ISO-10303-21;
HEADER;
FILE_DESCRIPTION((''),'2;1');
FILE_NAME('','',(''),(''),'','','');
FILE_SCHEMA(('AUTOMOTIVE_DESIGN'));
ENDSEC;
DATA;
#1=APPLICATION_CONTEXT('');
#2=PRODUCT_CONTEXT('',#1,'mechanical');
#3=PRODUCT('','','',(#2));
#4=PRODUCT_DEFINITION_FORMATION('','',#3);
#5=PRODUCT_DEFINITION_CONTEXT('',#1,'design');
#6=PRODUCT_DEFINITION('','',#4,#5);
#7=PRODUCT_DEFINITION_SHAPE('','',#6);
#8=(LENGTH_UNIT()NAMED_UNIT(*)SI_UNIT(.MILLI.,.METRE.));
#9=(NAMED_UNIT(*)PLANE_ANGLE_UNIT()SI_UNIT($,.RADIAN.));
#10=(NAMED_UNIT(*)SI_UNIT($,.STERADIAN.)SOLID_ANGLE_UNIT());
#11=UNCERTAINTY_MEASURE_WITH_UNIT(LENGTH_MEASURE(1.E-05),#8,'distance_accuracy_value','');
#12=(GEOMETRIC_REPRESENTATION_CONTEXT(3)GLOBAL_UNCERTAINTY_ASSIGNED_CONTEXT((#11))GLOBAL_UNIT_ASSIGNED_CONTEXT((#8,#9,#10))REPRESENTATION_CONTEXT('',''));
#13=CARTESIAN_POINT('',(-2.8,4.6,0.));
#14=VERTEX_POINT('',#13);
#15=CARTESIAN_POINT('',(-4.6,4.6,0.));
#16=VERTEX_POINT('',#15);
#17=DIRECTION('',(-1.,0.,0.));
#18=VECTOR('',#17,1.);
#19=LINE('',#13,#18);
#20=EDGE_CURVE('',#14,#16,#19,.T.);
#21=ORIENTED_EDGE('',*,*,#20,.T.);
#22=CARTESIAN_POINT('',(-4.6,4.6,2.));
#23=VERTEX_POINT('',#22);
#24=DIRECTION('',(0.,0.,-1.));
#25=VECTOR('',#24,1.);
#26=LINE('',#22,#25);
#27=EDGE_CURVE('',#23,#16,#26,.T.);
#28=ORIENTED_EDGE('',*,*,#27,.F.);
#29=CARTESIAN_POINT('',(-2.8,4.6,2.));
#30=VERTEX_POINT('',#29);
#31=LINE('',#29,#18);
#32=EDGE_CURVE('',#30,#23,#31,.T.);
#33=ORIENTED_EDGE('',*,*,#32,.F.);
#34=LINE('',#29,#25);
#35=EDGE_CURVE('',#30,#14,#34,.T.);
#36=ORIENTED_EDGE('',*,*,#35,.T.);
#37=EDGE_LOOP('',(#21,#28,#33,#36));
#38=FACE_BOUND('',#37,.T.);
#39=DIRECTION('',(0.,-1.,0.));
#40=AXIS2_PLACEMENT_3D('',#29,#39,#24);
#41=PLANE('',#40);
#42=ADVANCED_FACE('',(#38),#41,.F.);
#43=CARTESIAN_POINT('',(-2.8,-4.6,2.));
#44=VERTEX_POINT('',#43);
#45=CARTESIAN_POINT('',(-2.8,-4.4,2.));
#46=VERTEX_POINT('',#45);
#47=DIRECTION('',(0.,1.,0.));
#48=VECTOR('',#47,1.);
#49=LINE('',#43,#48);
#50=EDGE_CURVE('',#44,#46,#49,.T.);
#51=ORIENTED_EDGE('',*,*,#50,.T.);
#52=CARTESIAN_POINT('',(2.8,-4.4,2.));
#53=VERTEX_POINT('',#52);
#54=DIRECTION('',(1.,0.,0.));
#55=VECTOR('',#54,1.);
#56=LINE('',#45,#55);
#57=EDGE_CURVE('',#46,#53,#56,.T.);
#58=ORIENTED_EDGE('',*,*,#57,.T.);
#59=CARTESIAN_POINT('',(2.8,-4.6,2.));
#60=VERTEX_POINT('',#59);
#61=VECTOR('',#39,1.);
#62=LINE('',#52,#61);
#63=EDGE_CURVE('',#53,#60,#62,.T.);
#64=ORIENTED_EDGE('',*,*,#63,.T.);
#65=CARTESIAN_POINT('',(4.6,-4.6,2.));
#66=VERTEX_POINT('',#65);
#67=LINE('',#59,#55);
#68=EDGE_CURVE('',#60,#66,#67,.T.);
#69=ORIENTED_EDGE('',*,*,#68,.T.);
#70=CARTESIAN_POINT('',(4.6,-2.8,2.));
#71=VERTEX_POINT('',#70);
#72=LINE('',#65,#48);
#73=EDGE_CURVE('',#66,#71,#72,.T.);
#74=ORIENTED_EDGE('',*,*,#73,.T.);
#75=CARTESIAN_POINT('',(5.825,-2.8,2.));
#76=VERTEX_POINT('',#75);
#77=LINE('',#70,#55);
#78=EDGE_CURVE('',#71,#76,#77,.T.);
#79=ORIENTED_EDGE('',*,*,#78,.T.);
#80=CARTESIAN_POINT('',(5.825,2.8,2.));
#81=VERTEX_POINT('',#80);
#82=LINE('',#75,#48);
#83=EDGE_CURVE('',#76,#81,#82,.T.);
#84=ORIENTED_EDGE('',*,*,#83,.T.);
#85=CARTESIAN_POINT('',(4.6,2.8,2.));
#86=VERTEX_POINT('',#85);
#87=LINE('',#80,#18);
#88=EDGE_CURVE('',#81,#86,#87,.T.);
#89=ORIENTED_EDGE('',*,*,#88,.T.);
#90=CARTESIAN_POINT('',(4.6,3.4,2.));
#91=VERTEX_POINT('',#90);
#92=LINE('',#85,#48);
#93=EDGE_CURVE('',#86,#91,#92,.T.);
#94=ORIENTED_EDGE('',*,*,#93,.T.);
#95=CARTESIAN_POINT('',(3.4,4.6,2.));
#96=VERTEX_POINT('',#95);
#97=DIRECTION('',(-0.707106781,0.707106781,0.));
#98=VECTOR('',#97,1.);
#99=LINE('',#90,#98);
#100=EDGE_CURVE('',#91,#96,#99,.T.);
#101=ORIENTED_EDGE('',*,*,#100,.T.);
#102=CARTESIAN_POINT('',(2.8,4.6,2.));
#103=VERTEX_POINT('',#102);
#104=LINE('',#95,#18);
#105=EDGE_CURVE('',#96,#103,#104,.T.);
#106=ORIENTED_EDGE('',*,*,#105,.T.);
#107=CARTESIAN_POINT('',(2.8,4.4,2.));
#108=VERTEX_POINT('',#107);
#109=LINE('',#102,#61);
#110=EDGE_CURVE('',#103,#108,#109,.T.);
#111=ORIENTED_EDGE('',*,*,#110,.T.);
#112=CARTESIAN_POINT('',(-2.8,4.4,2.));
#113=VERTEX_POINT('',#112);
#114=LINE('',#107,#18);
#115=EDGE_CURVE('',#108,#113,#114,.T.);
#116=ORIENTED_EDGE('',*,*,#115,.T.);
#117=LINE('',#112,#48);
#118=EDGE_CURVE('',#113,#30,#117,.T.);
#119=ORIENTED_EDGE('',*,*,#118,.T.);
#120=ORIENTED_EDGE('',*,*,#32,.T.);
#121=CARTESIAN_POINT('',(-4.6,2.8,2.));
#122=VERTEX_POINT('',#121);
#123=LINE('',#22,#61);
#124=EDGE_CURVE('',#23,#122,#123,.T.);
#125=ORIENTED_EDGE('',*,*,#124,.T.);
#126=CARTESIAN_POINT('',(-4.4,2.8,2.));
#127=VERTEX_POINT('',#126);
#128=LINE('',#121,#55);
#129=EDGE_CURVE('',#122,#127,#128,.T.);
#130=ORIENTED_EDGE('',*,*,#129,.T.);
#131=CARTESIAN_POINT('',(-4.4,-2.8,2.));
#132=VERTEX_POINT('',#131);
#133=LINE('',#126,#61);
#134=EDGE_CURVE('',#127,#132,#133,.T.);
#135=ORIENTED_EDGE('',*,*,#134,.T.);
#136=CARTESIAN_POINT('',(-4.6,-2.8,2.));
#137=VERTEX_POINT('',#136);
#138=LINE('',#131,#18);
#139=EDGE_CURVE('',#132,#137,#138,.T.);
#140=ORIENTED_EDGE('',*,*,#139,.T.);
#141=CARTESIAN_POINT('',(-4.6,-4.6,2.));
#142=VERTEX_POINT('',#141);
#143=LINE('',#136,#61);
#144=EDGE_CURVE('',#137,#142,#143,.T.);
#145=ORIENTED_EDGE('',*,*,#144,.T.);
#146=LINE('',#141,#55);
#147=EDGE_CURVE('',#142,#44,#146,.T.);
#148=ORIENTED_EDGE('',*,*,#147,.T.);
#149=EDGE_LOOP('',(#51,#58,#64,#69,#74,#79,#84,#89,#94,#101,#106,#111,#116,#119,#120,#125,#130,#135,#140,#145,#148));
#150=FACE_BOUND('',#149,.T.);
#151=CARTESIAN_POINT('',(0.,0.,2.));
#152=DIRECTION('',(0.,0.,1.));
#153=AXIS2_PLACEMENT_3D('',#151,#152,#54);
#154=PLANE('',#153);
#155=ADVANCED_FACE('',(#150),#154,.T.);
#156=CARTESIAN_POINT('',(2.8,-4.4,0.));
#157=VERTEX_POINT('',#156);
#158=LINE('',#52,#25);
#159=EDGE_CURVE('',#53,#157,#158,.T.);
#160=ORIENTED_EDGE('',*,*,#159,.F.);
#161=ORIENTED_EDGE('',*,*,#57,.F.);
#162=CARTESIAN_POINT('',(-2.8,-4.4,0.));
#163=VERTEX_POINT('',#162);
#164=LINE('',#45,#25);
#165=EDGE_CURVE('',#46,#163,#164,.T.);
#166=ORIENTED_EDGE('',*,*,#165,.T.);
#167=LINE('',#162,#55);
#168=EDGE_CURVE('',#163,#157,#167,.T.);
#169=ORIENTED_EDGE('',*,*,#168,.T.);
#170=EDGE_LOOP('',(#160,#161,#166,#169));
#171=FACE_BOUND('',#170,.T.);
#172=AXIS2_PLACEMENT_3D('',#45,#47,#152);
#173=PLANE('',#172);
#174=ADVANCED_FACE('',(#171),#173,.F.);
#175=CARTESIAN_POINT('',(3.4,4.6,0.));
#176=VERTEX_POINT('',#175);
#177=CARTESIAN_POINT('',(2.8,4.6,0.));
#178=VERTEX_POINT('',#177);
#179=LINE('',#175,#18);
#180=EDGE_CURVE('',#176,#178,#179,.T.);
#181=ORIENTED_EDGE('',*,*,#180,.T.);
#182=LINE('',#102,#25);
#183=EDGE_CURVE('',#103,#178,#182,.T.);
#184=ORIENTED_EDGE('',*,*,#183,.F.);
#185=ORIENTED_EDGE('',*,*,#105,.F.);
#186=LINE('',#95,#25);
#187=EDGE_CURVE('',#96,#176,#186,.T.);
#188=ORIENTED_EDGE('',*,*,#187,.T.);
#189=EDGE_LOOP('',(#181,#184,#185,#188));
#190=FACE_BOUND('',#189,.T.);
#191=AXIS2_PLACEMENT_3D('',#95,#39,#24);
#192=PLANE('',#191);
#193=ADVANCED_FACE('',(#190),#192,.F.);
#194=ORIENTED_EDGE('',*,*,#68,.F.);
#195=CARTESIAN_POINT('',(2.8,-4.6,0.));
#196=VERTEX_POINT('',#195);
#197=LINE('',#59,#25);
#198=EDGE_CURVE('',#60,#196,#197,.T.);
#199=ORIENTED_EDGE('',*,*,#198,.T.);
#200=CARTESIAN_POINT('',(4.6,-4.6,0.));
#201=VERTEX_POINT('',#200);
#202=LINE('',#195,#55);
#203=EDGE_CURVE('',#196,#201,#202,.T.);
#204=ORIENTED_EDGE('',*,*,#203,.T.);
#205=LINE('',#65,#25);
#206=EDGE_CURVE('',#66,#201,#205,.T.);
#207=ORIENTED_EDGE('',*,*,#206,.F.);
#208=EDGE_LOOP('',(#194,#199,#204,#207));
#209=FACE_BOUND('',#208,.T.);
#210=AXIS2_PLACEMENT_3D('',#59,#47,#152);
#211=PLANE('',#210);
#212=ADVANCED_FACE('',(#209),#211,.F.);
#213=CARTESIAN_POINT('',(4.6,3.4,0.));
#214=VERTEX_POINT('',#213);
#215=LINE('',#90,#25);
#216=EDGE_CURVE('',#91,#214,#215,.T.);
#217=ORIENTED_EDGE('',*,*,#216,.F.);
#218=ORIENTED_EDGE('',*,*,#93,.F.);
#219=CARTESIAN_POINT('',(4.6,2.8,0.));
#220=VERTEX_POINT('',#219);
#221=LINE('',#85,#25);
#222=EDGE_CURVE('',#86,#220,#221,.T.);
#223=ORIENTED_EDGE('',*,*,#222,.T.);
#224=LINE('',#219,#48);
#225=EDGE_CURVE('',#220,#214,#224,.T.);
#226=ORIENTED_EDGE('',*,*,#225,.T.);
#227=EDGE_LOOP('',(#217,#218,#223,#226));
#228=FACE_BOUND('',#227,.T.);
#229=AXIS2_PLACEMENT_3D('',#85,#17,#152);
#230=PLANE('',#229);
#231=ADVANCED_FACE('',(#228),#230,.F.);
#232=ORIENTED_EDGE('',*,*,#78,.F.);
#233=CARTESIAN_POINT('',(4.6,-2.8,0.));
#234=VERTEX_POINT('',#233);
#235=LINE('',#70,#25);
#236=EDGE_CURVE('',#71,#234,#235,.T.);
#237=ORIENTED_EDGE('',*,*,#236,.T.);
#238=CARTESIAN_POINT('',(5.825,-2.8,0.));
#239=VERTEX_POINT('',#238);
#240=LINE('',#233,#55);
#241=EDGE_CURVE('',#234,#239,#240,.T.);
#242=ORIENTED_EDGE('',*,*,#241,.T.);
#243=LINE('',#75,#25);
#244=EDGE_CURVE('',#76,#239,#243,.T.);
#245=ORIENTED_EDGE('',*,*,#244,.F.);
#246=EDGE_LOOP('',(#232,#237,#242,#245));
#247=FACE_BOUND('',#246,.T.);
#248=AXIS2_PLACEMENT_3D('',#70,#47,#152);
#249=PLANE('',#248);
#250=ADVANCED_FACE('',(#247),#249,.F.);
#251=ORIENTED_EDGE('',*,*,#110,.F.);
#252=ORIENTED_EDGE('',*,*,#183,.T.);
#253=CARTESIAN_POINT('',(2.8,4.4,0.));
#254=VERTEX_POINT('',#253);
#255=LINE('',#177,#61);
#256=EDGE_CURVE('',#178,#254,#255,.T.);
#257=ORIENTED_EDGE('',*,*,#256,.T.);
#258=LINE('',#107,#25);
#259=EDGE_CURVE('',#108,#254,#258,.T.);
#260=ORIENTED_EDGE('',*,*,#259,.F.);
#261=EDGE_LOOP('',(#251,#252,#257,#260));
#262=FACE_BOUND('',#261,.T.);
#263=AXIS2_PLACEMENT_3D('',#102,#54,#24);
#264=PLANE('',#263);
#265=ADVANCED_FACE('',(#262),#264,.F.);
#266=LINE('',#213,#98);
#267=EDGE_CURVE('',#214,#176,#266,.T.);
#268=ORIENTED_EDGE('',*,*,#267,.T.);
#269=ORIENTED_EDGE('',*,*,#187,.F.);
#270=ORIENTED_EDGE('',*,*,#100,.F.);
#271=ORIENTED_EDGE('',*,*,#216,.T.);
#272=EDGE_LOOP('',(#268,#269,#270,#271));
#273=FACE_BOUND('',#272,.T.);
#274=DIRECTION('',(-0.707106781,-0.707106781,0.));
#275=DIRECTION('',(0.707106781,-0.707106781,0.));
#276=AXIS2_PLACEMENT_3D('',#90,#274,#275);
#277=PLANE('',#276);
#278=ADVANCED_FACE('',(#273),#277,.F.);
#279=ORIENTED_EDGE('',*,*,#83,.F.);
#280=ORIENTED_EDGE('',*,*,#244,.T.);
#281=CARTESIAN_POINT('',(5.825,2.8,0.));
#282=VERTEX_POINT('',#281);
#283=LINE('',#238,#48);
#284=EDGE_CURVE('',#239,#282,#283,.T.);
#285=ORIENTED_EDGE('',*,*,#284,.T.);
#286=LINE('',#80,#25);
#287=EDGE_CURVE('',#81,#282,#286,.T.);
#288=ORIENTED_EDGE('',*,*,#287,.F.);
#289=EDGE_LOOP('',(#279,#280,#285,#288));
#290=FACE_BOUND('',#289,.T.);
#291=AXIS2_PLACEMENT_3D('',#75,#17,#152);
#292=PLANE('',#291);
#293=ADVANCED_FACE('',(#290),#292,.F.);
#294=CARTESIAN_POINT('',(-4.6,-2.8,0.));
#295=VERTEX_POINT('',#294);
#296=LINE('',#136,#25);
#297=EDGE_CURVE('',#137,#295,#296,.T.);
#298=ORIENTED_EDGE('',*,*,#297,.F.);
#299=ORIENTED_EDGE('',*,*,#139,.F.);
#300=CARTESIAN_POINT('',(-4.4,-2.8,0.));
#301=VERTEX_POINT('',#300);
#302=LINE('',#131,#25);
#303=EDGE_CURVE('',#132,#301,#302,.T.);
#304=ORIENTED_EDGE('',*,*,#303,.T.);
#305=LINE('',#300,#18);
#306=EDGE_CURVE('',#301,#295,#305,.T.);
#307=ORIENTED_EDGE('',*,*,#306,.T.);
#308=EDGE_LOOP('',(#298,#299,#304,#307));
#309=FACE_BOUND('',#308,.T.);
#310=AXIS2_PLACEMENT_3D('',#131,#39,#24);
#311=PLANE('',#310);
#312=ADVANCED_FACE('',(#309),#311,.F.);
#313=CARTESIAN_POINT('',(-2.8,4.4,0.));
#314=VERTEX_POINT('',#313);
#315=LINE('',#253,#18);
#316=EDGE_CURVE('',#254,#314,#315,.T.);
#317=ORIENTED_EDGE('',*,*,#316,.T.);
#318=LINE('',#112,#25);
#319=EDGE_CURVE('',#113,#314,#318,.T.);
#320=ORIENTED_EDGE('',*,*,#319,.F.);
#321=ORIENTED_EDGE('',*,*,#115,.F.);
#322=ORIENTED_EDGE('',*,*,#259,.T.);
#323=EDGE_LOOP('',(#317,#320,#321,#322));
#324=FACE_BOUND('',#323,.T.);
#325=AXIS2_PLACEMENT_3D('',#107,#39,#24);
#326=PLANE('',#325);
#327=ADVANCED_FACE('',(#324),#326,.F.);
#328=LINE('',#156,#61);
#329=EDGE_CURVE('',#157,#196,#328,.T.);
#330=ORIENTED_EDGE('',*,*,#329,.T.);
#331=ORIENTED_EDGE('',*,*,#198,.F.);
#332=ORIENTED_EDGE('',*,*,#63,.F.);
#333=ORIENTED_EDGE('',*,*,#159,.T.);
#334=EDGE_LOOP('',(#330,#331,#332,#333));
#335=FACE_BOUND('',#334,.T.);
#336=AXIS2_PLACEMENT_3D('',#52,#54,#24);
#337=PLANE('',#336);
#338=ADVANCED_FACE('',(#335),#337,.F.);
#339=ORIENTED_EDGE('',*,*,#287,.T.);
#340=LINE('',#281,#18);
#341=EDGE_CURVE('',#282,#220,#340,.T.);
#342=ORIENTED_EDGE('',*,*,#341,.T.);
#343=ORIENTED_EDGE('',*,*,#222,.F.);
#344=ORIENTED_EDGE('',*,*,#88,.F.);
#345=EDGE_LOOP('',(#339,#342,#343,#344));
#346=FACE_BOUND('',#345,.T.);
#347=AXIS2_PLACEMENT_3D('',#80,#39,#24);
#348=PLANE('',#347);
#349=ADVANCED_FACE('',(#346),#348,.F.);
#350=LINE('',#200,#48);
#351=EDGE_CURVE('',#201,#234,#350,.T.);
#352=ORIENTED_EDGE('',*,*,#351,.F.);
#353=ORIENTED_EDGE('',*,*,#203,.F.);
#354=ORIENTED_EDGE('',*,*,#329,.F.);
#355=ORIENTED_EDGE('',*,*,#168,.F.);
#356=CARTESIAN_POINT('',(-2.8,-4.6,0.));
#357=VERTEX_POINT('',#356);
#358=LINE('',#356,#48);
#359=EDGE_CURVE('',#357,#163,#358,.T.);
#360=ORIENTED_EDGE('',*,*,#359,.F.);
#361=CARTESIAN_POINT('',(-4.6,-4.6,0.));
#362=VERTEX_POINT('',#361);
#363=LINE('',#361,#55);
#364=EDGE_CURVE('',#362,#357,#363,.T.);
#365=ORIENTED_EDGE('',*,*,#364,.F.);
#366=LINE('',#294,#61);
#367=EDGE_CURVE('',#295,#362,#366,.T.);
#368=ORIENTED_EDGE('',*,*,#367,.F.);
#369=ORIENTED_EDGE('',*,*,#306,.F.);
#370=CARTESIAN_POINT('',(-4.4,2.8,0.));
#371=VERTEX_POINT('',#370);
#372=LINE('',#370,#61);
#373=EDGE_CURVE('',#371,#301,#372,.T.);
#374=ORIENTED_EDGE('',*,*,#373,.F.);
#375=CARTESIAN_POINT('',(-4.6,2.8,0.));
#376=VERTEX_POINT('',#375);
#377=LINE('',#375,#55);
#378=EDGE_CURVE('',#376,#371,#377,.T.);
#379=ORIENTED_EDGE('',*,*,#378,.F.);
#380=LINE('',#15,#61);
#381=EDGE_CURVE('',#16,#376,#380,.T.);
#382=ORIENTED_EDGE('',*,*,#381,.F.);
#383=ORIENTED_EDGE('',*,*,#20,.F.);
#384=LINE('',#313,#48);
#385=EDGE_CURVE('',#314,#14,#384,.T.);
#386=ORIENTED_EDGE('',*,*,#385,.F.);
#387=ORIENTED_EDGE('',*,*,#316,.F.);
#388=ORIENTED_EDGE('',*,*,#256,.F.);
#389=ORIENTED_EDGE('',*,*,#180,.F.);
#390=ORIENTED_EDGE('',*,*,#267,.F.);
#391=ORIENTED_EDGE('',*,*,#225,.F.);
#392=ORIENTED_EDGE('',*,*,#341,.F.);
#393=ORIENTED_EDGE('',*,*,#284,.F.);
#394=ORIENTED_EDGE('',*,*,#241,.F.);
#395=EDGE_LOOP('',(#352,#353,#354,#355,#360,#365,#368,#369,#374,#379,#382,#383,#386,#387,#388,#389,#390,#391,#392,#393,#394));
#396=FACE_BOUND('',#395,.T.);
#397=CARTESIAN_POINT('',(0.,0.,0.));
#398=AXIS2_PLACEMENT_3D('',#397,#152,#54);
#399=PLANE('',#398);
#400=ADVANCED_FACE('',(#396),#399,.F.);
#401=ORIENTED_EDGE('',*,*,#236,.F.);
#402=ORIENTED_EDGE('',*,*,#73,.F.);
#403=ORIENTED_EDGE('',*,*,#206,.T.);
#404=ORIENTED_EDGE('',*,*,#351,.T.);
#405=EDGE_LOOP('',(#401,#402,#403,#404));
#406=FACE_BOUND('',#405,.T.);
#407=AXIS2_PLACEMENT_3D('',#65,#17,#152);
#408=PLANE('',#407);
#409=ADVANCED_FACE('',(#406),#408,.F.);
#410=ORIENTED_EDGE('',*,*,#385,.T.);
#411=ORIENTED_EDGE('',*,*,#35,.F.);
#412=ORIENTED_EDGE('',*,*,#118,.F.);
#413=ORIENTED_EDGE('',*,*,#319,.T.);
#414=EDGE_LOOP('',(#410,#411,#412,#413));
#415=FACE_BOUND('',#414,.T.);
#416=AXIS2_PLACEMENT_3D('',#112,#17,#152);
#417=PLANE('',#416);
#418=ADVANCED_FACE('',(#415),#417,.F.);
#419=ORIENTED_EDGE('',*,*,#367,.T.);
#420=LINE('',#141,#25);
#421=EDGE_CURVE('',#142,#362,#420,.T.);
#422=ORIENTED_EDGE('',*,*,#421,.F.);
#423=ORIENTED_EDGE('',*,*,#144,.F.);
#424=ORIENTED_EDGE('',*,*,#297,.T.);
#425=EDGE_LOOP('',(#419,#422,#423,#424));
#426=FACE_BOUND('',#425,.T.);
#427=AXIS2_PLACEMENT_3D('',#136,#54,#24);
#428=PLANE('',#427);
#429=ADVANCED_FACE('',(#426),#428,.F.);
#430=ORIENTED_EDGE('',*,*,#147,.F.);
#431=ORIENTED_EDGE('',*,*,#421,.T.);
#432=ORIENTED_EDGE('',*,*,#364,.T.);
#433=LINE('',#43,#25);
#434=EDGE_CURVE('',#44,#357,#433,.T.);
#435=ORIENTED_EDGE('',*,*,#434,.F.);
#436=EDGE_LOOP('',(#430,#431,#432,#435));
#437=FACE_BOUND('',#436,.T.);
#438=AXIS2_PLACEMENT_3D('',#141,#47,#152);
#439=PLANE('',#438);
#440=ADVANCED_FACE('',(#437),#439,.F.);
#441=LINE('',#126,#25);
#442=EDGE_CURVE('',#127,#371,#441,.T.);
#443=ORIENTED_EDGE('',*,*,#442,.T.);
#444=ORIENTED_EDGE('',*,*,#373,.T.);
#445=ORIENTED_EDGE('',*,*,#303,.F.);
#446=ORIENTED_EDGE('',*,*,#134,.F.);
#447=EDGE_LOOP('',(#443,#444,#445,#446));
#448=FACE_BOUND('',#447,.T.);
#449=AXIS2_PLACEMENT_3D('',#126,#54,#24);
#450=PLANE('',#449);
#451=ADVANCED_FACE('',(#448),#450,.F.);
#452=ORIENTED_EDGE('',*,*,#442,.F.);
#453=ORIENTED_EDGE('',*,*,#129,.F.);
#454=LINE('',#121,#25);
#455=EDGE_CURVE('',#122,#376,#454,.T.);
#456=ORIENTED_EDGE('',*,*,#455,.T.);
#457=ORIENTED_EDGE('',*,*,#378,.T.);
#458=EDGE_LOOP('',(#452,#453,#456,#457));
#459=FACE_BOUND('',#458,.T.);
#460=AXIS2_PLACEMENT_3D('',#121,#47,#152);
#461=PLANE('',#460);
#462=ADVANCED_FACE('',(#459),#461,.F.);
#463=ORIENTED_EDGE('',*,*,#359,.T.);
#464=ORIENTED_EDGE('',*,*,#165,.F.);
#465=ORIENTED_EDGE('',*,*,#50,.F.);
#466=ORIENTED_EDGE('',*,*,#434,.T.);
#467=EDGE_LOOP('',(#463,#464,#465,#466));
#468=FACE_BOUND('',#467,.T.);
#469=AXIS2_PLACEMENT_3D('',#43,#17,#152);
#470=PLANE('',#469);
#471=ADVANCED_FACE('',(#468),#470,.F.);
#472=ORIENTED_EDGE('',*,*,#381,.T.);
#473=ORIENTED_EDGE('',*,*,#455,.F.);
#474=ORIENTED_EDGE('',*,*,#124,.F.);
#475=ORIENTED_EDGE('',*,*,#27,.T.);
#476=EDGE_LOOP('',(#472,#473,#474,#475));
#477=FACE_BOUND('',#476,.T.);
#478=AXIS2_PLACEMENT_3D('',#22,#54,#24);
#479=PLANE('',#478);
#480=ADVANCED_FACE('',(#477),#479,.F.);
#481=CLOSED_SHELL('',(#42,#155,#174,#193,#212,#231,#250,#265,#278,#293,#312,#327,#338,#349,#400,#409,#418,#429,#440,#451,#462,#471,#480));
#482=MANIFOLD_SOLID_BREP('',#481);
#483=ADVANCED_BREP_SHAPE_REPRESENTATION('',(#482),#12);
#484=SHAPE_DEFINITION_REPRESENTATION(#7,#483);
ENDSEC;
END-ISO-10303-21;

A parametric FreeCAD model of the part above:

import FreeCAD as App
import Part
import Sketcher

V = App.Vector
Q = App.Units.Quantity


def add_polygon(sketch, points):
    """Adds a closed chain of lines whose ends are joined by coincident constraints."""
    first, n = sketch.GeometryCount, len(points)
    for a, b in zip(points, points[1:] + points[:1]):
        sketch.addGeometry(Part.LineSegment(App.Vector(*a, 0), App.Vector(*b, 0)), False)
    for i in range(n):
        sketch.addConstraint(Sketcher.Constraint("Coincident", first + i, 2, first + (i + 1) % n, 1))

doc = App.newDocument("Part")
params = doc.addObject("Spreadsheet::Sheet", "Params")
for row, (alias, value) in enumerate([
    ("sketch1_width", "0.6 mm"),
    ("sketch1_width2", "5.6 mm"),
    ("sketch1_width3", "1.8 mm"),
    ("sketch1_width4", "0.2 mm"),
    ("pad1_length", "2 mm"),
], start=1):
    params.set(f"A{row}", alias)
    params.set(f"B{row}", "=" + value)
    params.setAlias(f"B{row}", alias)

body = doc.addObject("PartDesign::Body", "Body")

sketch1 = doc.addObject("Sketcher::SketchObject", "Sketch")
body.addObject(sketch1)
sketch1.AttachmentSupport = (doc.XY_Plane, [""])
sketch1.MapMode = "FlatFace"
add_polygon(sketch1, [(4.6, -4.6), (4.6, -2.8), (5.83, -2.8), (5.83, 2.8), (4.6, 2.8), (4.6, 3.4), (3.4, 4.6), (2.8, 4.6), (2.8, 4.4), (-2.8, 4.4), (-2.8, 4.6), (-4.6, 4.6), (-4.6, 2.8), (-4.4, 2.8), (-4.4, -2.8), (-4.6, -2.8), (-4.6, -4.6), (-2.8, -4.6), (-2.8, -4.4), (2.8, -4.4), (2.8, -4.6)])
sketch1.addConstraint([
    Sketcher.Constraint("Vertical", 0),
    Sketcher.Constraint("Horizontal", 1),
    Sketcher.Constraint("Vertical", 2),
    Sketcher.Constraint("Horizontal", 3),
    Sketcher.Constraint("Vertical", 4),
    Sketcher.Constraint("Horizontal", 6),
    Sketcher.Constraint("Vertical", 7),
    Sketcher.Constraint("Horizontal", 8),
    Sketcher.Constraint("Vertical", 9),
    Sketcher.Constraint("Horizontal", 10),
    Sketcher.Constraint("Vertical", 11),
    Sketcher.Constraint("Horizontal", 12),
    Sketcher.Constraint("Vertical", 13),
    Sketcher.Constraint("Horizontal", 14),
    Sketcher.Constraint("Vertical", 15),
    Sketcher.Constraint("Horizontal", 16),
    Sketcher.Constraint("Vertical", 17),
    Sketcher.Constraint("Horizontal", 18),
    Sketcher.Constraint("Vertical", 19),
    Sketcher.Constraint("Horizontal", 20),
    Sketcher.Constraint("Symmetric", 0, 2, 11, 2, -1, 1),
    Sketcher.Constraint("Symmetric", 3, 2, 14, 2, -1, 1),
    Sketcher.Constraint("Symmetric", 6, 2, 16, 2, -1, 1),
    Sketcher.Constraint("Symmetric", 8, 2, 18, 2, -1, 1),
    Sketcher.Constraint("Symmetric", 6, 2, 9, 2, -2),
    Sketcher.Constraint("Symmetric", 3, 2, 11, 2, -2),
    Sketcher.Constraint("Horizontal", 16, 2, 19, 2),
    Sketcher.Constraint("Equal", 20, 0),
    Sketcher.Constraint("Equal", 18, 2),
    Sketcher.Constraint("Equal", 6, 4),
    Sketcher.Constraint("Equal", 14, 7),
    Sketcher.Constraint("DistanceX", 6, 2, 6, 1, Q("0.6 mm")),
    Sketcher.Constraint("DistanceX", 8, 2, 8, 1, Q("5.6 mm")),
    Sketcher.Constraint("DistanceX", 10, 2, 10, 1, Q("1.8 mm")),
    Sketcher.Constraint("DistanceX", 12, 1, 12, 2, Q("0.2 mm")),
    Sketcher.Constraint("DistanceX", 1, 1, 1, 2, Q("1.225 mm")),
])
sketch1.setExpression("Constraints[52]", "Params.sketch1_width")
sketch1.setExpression("Constraints[53]", "Params.sketch1_width2")
sketch1.setExpression("Constraints[54]", "Params.sketch1_width3")
sketch1.setExpression("Constraints[55]", "Params.sketch1_width4")
pad1 = doc.addObject("PartDesign::Pad", "Pad")
body.addObject(pad1)
pad1.Profile = sketch1
pad1.setExpression("Length", "Params.pad1_length")

doc.recompute()
